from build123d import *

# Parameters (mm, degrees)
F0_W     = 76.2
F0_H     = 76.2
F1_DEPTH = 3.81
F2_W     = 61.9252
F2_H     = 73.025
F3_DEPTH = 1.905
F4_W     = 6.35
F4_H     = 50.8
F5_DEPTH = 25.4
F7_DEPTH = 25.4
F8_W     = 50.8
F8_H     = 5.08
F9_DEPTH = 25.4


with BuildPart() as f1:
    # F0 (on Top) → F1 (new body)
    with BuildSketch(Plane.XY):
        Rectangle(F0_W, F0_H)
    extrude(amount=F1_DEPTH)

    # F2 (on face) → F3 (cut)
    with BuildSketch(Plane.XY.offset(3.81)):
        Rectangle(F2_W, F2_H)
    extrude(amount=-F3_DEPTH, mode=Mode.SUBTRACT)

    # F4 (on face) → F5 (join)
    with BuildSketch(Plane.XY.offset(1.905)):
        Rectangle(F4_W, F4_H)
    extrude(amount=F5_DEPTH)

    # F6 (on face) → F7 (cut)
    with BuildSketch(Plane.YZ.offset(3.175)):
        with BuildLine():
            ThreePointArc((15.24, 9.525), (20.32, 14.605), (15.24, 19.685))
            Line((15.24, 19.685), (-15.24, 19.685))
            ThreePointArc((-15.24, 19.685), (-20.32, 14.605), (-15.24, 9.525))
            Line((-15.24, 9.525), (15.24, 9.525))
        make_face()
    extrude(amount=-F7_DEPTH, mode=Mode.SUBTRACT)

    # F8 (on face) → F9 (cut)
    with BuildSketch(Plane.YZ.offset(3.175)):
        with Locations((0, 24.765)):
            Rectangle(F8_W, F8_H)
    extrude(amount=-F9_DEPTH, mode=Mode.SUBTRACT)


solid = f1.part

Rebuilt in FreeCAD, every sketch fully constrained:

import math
import FreeCAD as App
import Part
import Sketcher
Q = App.Units.Quantity

doc = App.newDocument("Part")
params = doc.addObject("Spreadsheet::Sheet", "Params")
for row, (alias, value) in enumerate([
    ("sketch1_width", "3 in"),
    ("pad1_length", "0.15 in"),
    ("sketch2_width", "2.438 in"),
    ("sketch2_height", "2.875 in"),
    ("pocket1_length", "0.075 in"),
    ("sketch3_height", "2 in"),
    ("sketch3_width", "0.25 in"),
    ("pad2_length", "1 in"),
    ("sketch4_radius", "0.2 in"),
    ("sketch4_width", "1.2 in"),
    ("pocket2_length", "1 in"),
    ("sketch5_width", "2 in"),
    ("sketch5_height", "0.2 in"),
    ("pocket3_length", "1 in"),
], start=1):
    params.set(f"A{row}", alias)
    params.set(f"B{row}", "=" + value)
    params.setAlias(f"B{row}", alias)

body = doc.addObject("PartDesign::Body", "Body")

sketch1 = body.newObject("Sketcher::SketchObject", "Sketch")
sketch1.AttachmentSupport = (doc.getObject("XY_Plane"), [""])
sketch1.MapMode = "FlatFace"
sketch1.addGeometry([
    Part.LineSegment(App.Vector(-38, 38, 0), App.Vector(-38, -38, 0)),
    Part.LineSegment(App.Vector(-38, -38, 0), App.Vector(38, -38, 0)),
    Part.LineSegment(App.Vector(38, -38, 0), App.Vector(38, 38, 0)),
    Part.LineSegment(App.Vector(38, 38, 0), App.Vector(-38, 38, 0)),
], False)
sketch1.addConstraint([
    Sketcher.Constraint("Coincident", 0, 2, 1, 1),
    Sketcher.Constraint("Coincident", 1, 2, 2, 1),
    Sketcher.Constraint("Coincident", 2, 2, 3, 1),
    Sketcher.Constraint("Coincident", 3, 2, 0, 1),
    Sketcher.Constraint("Vertical", 0),
    Sketcher.Constraint("Horizontal", 1),
    Sketcher.Constraint("Vertical", 2),
    Sketcher.Constraint("Horizontal", 3),
    Sketcher.Constraint("Symmetric", 0, 2, 2, 2, -1, 1),
    Sketcher.Constraint("Equal", 3, 0),
    Sketcher.Constraint("DistanceX", 1, 1, 1, 2, Q("3 in")),
])
sketch1.setExpression("Constraints[10]", "Params.sketch1_width")
pad1 = body.newObject("PartDesign::Pad", "Pad")
pad1.Profile = sketch1
pad1.setExpression("Length", "Params.pad1_length")

sketch2 = body.newObject("Sketcher::SketchObject", "Sketch001")
sketch2.AttachmentSupport = (doc.getObject("XY_Plane"), [""])
sketch2.MapMode = "FlatFace"
sketch2.AttachmentOffset = App.Placement(App.Vector(0, 0, 0.15 * 25.4), App.Rotation())
sketch2.addGeometry([
    Part.LineSegment(App.Vector(-31, 37, 0), App.Vector(-31, -37, 0)),
    Part.LineSegment(App.Vector(-31, -37, 0), App.Vector(31, -37, 0)),
    Part.LineSegment(App.Vector(31, -37, 0), App.Vector(31, 37, 0)),
    Part.LineSegment(App.Vector(31, 37, 0), App.Vector(-31, 37, 0)),
], False)
sketch2.addConstraint([
    Sketcher.Constraint("Coincident", 0, 2, 1, 1),
    Sketcher.Constraint("Coincident", 1, 2, 2, 1),
    Sketcher.Constraint("Coincident", 2, 2, 3, 1),
    Sketcher.Constraint("Coincident", 3, 2, 0, 1),
    Sketcher.Constraint("Vertical", 0),
    Sketcher.Constraint("Horizontal", 1),
    Sketcher.Constraint("Vertical", 2),
    Sketcher.Constraint("Horizontal", 3),
    Sketcher.Constraint("Symmetric", 0, 2, 2, 2, -1, 1),
    Sketcher.Constraint("DistanceX", 1, 1, 1, 2, Q("2.438 in")),
    Sketcher.Constraint("DistanceY", 0, 2, 0, 1, Q("2.875 in")),
])
sketch2.setExpression("Constraints[9]", "Params.sketch2_width")
sketch2.setExpression("Constraints[10]", "Params.sketch2_height")
pocket1 = body.newObject("PartDesign::Pocket", "Pocket")
pocket1.Profile = sketch2
pocket1.setExpression("Length", "Params.pocket1_length")

sketch3 = body.newObject("Sketcher::SketchObject", "Sketch002")
sketch3.AttachmentSupport = (doc.getObject("XY_Plane"), [""])
sketch3.MapMode = "FlatFace"
sketch3.AttachmentOffset = App.Placement(App.Vector(0, 0, 0.075 * 25.4), App.Rotation())
sketch3.addGeometry([
    Part.LineSegment(App.Vector(-3, 25, 0), App.Vector(-3, -25, 0)),
    Part.LineSegment(App.Vector(-3, -25, 0), App.Vector(3, -25, 0)),
    Part.LineSegment(App.Vector(3, -25, 0), App.Vector(3, 25, 0)),
    Part.LineSegment(App.Vector(3, 25, 0), App.Vector(-3, 25, 0)),
], False)
sketch3.addConstraint([
    Sketcher.Constraint("Coincident", 0, 2, 1, 1),
    Sketcher.Constraint("Coincident", 1, 2, 2, 1),
    Sketcher.Constraint("Coincident", 2, 2, 3, 1),
    Sketcher.Constraint("Coincident", 3, 2, 0, 1),
    Sketcher.Constraint("Vertical", 0),
    Sketcher.Constraint("Horizontal", 1),
    Sketcher.Constraint("Vertical", 2),
    Sketcher.Constraint("Horizontal", 3),
    Sketcher.Constraint("Symmetric", 0, 2, 2, 2, -1, 1),
    Sketcher.Constraint("DistanceY", 0, 2, 0, 1, Q("2 in")),
    Sketcher.Constraint("DistanceX", 1, 1, 1, 2, Q("0.25 in")),
])
sketch3.setExpression("Constraints[9]", "Params.sketch3_height")
sketch3.setExpression("Constraints[10]", "Params.sketch3_width")
pad2 = body.newObject("PartDesign::Pad", "Pad001")
pad2.Profile = sketch3
pad2.setExpression("Length", "Params.pad2_length")

sketch4 = body.newObject("Sketcher::SketchObject", "Sketch003")
sketch4.AttachmentSupport = (doc.getObject("YZ_Plane"), [""])
sketch4.MapMode = "FlatFace"
sketch4.AttachmentOffset = App.Placement(App.Vector(0, 0, 0.125 * 25.4), App.Rotation())
sketch4.addGeometry([
    Part.ArcOfCircle(Part.Circle(App.Vector(15, 15, 0), App.Vector(0, 0, 1), 5), math.radians(-90), math.radians(90)),
    Part.LineSegment(App.Vector(15, 20, 0), App.Vector(-15, 20, 0)),
    Part.ArcOfCircle(Part.Circle(App.Vector(-15, 15, 0), App.Vector(0, 0, 1), 5), math.radians(90), math.radians(270)),
    Part.LineSegment(App.Vector(-15, 10, 0), App.Vector(15, 10, 0)),
], False)
sketch4.addConstraint([
    Sketcher.Constraint("Tangent", 0, 2, 1, 1),
    Sketcher.Constraint("Tangent", 1, 2, 2, 1),
    Sketcher.Constraint("Tangent", 2, 2, 3, 1),
    Sketcher.Constraint("Tangent", 3, 2, 0, 1),
    Sketcher.Constraint("Horizontal", 1),
    Sketcher.Constraint("Horizontal", 3),
    Sketcher.Constraint("Radius", 0, Q("0.2 in")),
    Sketcher.Constraint("DistanceX", 1, 2, 1, 1, Q("1.2 in")),
    Sketcher.Constraint("DistanceX", -1, 1, 0, 3, Q("0.6 in")),
    Sketcher.Constraint("DistanceY", -1, 1, 0, 3, Q("0.575 in")),
])
sketch4.setExpression("Constraints[6]", "Params.sketch4_radius")
sketch4.setExpression("Constraints[7]", "Params.sketch4_width")
pocket2 = body.newObject("PartDesign::Pocket", "Pocket001")
pocket2.Profile = sketch4
pocket2.setExpression("Length", "Params.pocket2_length")

sketch5 = body.newObject("Sketcher::SketchObject", "Sketch004")
sketch5.AttachmentSupport = (doc.getObject("YZ_Plane"), [""])
sketch5.MapMode = "FlatFace"
sketch5.AttachmentOffset = App.Placement(App.Vector(0, 0, 0.125 * 25.4), App.Rotation())
sketch5.addGeometry([
    Part.LineSegment(App.Vector(-25, 27, 0), App.Vector(-25, 22, 0)),
    Part.LineSegment(App.Vector(-25, 22, 0), App.Vector(25, 22, 0)),
    Part.LineSegment(App.Vector(25, 22, 0), App.Vector(25, 27, 0)),
    Part.LineSegment(App.Vector(25, 27, 0), App.Vector(-25, 27, 0)),
], False)
sketch5.addConstraint([
    Sketcher.Constraint("Coincident", 0, 2, 1, 1),
    Sketcher.Constraint("Coincident", 1, 2, 2, 1),
    Sketcher.Constraint("Coincident", 2, 2, 3, 1),
    Sketcher.Constraint("Coincident", 3, 2, 0, 1),
    Sketcher.Constraint("Vertical", 0),
    Sketcher.Constraint("Horizontal", 1),
    Sketcher.Constraint("Vertical", 2),
    Sketcher.Constraint("Horizontal", 3),
    Sketcher.Constraint("DistanceX", 1, 1, 1, 2, Q("2 in")),
    Sketcher.Constraint("DistanceY", 0, 2, 0, 1, Q("0.2 in")),
    Sketcher.Constraint("DistanceX", 0, 2, -1, 1, Q("1 in")),
    Sketcher.Constraint("DistanceY", -1, 1, 0, 2, Q("0.875 in")),
])
sketch5.setExpression("Constraints[8]", "Params.sketch5_width")
sketch5.setExpression("Constraints[9]", "Params.sketch5_height")
pocket3 = body.newObject("PartDesign::Pocket", "Pocket002")
pocket3.Profile = sketch5
pocket3.setExpression("Length", "Params.pocket3_length")

doc.recompute()
